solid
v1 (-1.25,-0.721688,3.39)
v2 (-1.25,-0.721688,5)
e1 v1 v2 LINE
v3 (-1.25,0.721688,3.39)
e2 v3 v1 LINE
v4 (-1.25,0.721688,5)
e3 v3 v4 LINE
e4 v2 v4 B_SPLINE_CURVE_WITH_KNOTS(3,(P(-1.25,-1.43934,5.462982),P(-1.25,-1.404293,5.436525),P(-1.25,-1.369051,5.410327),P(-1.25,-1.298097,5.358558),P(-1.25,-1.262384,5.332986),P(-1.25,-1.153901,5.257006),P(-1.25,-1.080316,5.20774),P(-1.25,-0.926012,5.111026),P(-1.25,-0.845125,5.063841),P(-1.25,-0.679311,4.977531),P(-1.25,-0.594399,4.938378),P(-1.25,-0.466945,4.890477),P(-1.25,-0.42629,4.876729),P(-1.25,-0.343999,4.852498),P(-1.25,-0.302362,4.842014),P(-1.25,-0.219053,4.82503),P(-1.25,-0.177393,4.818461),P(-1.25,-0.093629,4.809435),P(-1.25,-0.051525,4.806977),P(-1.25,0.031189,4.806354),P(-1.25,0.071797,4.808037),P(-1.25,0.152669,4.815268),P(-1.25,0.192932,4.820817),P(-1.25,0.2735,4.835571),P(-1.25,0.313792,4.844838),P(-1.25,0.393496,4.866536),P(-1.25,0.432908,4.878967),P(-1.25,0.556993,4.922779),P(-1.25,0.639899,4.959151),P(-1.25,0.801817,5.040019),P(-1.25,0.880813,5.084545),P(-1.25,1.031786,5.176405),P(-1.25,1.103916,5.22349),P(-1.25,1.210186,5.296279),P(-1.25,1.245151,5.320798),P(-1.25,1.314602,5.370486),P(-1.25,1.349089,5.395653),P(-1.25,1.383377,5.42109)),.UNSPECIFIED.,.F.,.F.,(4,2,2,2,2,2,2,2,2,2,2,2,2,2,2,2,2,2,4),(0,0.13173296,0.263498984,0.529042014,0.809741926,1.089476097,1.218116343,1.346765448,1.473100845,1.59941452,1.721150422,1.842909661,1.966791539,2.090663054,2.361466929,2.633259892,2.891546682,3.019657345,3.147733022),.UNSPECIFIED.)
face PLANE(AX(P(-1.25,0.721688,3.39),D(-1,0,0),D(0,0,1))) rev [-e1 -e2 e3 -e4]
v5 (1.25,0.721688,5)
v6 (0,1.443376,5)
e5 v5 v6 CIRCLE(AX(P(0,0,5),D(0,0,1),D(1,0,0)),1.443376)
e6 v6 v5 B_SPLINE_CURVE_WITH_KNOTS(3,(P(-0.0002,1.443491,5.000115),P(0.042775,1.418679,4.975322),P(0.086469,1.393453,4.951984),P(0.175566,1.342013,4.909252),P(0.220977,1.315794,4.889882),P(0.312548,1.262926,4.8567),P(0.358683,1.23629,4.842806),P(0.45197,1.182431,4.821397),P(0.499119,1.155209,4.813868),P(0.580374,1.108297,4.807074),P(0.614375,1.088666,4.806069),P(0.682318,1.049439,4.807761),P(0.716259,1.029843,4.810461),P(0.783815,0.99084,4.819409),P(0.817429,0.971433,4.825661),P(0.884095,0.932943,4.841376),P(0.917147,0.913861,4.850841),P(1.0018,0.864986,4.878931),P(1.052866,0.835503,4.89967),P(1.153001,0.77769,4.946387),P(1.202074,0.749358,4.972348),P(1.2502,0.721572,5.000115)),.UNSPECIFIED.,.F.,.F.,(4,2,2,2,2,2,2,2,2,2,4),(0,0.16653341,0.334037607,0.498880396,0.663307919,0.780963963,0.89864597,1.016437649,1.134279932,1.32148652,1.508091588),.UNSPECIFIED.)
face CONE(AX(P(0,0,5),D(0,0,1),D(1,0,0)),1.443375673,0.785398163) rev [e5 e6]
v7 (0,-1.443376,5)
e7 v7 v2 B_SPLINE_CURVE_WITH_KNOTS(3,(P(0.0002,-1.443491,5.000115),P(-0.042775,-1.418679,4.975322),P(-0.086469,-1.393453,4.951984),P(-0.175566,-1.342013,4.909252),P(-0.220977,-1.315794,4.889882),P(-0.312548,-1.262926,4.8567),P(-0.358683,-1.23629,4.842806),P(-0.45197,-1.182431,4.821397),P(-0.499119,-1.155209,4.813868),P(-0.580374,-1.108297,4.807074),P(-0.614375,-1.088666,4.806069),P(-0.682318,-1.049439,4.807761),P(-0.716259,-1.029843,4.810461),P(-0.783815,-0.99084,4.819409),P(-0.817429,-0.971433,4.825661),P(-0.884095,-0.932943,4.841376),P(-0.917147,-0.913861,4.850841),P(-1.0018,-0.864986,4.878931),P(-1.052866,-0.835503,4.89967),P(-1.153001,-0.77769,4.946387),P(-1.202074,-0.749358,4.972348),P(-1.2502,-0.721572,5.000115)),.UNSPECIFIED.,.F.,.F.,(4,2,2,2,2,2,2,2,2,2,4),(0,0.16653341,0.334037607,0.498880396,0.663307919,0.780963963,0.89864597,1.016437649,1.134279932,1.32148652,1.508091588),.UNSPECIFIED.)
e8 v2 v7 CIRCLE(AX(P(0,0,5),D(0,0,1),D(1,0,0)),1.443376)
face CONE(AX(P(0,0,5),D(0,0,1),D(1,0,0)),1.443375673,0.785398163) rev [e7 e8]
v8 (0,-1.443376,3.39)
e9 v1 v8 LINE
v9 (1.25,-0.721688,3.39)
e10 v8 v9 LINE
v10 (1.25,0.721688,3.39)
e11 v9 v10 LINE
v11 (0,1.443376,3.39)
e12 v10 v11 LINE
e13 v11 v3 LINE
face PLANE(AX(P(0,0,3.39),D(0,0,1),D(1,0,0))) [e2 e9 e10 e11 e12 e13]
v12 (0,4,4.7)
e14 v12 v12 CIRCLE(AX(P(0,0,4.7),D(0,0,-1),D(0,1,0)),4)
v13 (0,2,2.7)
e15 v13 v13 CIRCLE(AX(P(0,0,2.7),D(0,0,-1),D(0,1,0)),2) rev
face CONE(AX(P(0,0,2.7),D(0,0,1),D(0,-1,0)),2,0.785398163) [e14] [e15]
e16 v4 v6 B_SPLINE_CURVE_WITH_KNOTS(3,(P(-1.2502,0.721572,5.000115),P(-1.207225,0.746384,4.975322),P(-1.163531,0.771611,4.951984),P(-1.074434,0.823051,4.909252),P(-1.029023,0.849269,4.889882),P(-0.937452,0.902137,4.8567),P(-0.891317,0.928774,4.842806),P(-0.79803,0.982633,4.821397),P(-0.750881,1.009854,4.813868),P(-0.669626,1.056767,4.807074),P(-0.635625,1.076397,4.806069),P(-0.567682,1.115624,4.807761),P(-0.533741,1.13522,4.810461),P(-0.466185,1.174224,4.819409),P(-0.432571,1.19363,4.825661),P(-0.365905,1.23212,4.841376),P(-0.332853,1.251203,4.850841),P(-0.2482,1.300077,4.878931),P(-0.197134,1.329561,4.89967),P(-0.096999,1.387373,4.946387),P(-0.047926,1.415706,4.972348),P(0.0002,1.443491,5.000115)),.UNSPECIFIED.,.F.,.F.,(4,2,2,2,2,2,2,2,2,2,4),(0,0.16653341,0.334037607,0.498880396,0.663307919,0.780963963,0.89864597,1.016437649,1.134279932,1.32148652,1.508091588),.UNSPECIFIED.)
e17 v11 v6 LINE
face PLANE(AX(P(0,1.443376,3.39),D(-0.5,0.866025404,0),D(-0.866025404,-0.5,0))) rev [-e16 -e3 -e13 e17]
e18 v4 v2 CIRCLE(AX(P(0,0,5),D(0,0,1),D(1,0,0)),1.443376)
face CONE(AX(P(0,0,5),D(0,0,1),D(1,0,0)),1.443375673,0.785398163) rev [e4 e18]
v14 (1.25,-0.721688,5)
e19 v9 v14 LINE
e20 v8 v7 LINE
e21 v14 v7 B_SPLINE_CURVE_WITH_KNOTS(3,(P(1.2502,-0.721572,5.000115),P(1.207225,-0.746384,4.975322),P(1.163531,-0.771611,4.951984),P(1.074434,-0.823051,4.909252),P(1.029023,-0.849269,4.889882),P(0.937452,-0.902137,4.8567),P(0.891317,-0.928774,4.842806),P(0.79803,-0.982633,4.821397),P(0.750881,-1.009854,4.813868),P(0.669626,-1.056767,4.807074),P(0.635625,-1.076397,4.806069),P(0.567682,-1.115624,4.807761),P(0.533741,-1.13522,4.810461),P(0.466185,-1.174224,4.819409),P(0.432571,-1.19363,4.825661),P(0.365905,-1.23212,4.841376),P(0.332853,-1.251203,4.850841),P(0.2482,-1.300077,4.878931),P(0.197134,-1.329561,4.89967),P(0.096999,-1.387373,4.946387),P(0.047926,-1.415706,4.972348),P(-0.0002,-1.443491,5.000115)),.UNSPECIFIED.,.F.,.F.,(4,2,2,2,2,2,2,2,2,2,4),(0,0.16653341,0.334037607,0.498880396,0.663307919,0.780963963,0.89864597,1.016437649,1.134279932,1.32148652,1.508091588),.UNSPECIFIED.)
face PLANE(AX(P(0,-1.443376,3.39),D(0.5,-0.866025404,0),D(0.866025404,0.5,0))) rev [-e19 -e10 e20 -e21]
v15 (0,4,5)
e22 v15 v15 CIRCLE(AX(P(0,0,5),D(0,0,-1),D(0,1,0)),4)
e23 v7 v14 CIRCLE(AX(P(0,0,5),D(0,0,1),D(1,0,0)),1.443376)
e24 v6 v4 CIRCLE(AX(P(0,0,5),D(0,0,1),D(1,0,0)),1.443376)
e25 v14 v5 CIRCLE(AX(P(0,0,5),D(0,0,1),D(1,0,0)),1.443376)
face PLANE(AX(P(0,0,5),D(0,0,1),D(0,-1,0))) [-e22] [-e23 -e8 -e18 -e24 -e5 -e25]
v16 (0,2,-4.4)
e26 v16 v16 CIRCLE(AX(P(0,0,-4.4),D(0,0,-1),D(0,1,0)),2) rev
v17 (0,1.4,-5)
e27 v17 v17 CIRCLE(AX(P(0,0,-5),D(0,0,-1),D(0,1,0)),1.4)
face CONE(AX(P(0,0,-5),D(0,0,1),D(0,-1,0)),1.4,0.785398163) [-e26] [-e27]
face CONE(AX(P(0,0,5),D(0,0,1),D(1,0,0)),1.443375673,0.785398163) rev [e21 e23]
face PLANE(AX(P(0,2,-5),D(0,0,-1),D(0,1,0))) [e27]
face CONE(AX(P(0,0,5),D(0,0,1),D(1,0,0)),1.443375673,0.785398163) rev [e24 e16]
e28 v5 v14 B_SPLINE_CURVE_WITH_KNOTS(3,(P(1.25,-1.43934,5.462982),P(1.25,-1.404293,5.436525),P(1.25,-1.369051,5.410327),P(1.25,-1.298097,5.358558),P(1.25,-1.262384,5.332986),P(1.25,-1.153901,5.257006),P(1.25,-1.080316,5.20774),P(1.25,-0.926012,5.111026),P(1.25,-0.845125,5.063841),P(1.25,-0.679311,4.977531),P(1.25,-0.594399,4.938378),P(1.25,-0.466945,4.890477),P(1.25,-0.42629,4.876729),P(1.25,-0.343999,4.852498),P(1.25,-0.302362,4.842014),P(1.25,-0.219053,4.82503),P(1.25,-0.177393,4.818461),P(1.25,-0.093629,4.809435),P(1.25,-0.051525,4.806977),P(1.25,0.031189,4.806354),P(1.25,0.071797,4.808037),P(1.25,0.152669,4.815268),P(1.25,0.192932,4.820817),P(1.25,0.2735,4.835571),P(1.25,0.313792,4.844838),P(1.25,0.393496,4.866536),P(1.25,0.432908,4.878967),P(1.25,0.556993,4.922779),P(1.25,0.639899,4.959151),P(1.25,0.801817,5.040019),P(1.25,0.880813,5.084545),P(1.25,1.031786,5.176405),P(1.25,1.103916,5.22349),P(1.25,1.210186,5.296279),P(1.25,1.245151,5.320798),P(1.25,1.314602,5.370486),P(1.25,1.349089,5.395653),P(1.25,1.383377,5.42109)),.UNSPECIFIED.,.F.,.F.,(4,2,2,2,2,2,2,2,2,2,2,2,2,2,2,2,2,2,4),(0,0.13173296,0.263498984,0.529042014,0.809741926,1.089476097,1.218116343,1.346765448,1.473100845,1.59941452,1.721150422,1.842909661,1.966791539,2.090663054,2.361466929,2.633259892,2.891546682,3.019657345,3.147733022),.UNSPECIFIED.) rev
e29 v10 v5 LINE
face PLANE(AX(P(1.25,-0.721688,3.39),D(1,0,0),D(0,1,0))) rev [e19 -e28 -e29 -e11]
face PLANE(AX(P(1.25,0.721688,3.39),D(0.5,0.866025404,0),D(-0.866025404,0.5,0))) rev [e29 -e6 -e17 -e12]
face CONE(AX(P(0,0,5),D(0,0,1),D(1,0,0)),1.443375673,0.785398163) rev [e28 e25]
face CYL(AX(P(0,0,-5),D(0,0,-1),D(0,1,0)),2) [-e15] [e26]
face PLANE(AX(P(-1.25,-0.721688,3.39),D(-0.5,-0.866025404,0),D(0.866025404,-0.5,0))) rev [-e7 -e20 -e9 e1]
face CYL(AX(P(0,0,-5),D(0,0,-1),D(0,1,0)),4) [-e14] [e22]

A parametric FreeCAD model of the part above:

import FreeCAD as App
import Part
import Sketcher
Q = App.Units.Quantity


def edges_at(feature, points):
    """Names of the edges that pass closest to the given points."""
    edges = feature.Shape.Edges
    near = lambda p: min(range(len(edges)), key=lambda i: edges[i].distToShape(Part.Vertex(*p))[0])
    return sorted({f"Edge{near(p) + 1}" for p in points})


def faces_at(feature, points):
    """Names of the faces that lie closest to the given points."""
    faces = feature.Shape.Faces
    near = lambda p: min(range(len(faces)), key=lambda i: faces[i].distToShape(Part.Vertex(*p))[0])
    return sorted({f"Face{near(p) + 1}" for p in points})

doc = App.newDocument("Part")
body = doc.addObject("PartDesign::Body", "Body")

# Sketch on YZ plane
sketch1 = body.newObject("Sketcher::SketchObject", "Sketch")
sketch1.AttachmentSupport = (doc.getObject("YZ_Plane"), [""])
sketch1.MapMode = "FlatFace"
sketch1.addGeometry([
    Part.LineSegment(App.Vector(2, 5, 0), App.Vector(0, 5, 0)),
    Part.LineSegment(App.Vector(0, 5, 0), App.Vector(0, -5, 0)),
    Part.LineSegment(App.Vector(0, -5, 0), App.Vector(2, -5, 0)),
    Part.LineSegment(App.Vector(2, -5, 0), App.Vector(2, 5, 0)),
], False)
sketch1.addConstraint([
    Sketcher.Constraint("Coincident", 0, 2, 1, 1),
    Sketcher.Constraint("Coincident", 1, 2, 2, 1),
    Sketcher.Constraint("Coincident", 2, 2, 3, 1),
    Sketcher.Constraint("Coincident", 3, 2, 0, 1),
    Sketcher.Constraint("Horizontal", 0),
    Sketcher.Constraint("Vertical", 1),
    Sketcher.Constraint("Horizontal", 2),
    Sketcher.Constraint("Vertical", 3),
    Sketcher.Constraint("Symmetric", 0, 2, 1, 2, -1, 1),
    Sketcher.Constraint("DistanceX", 0, 2, 0, 1, Q("2 mm")),
    Sketcher.Constraint("DistanceY", 1, 2, 1, 1, Q("10 mm")),
])
revolution = body.newObject("PartDesign::Revolution", "Revolution")
revolution.Profile = sketch1
revolution.ReferenceAxis = (sketch1, ["V_Axis"])
revolution.Angle = 360
doc.recompute()

chamfer = body.newObject("PartDesign::Chamfer", "Chamfer")
chamfer.Base = (revolution, edges_at(revolution, [(0, -2, -5)]))
chamfer.Size = 0.6

# Sketch on YZ plane
sketch2 = body.newObject("Sketcher::SketchObject", "Sketch001")
sketch2.AttachmentSupport = (doc.getObject("YZ_Plane"), [""])
sketch2.MapMode = "FlatFace"
sketch2.addGeometry([
    Part.LineSegment(App.Vector(4, 4.7, 0), App.Vector(4, 5, 0)),  # 0
    Part.LineSegment(App.Vector(4, 5, 0), App.Vector(0, 5, 0)),  # 1
    Part.LineSegment(App.Vector(0, 5, 0), App.Vector(0, 2.7, 0)),  # 2
    Part.LineSegment(App.Vector(0, 2.7, 0), App.Vector(2, 2.7, 0)),  # 3
    Part.LineSegment(App.Vector(2, 2.7, 0), App.Vector(4, 4.7, 0)),  # 4
], False)
sketch2.addConstraint([
    Sketcher.Constraint("Coincident", 0, 2, 1, 1),
    Sketcher.Constraint("Coincident", 1, 2, 2, 1),
    Sketcher.Constraint("Coincident", 2, 2, 3, 1),
    Sketcher.Constraint("Coincident", 3, 2, 4, 1),
    Sketcher.Constraint("Coincident", 4, 2, 0, 1),
    Sketcher.Constraint("Vertical", 0),
    Sketcher.Constraint("Horizontal", 1),
    Sketcher.Constraint("Vertical", 2),
    Sketcher.Constraint("Horizontal", 3),
    Sketcher.Constraint("PointOnObject", 1, 2, -2),
    Sketcher.Constraint("DistanceX", 1, 2, 1, 1, Q("4 mm")),
    Sketcher.Constraint("DistanceX", 3, 1, 3, 2, Q("2 mm")),
    Sketcher.Constraint("Angle", 4, Q("45 deg")),
    Sketcher.Constraint("DistanceY", 0, 1, 0, 2, Q("0.3 mm")),
    Sketcher.Constraint("DistanceY", -1, 1, 0, 2, Q("5 mm")),
])
revolution2 = body.newObject("PartDesign::Revolution", "Revolution001")
revolution2.Profile = sketch2
revolution2.ReferenceAxis = (sketch2, ["V_Axis"])
revolution2.Angle = 360

# Sketch on XY plane
sketch3 = body.newObject("Sketcher::SketchObject", "Sketch002")
sketch3.AttachmentSupport = (doc.getObject("XY_Plane"), [""])
sketch3.MapMode = "FlatFace"
sketch3.AttachmentOffset = App.Placement(App.Vector(0, 0, 5), App.Rotation())
sketch3.addGeometry([
    Part.LineSegment(App.Vector(0, 1.4, 0), App.Vector(-1.2, 0.7, 0)),  # 0
    Part.LineSegment(App.Vector(-1.2, 0.7, 0), App.Vector(-1.2, -0.7, 0)),  # 1
    Part.LineSegment(App.Vector(-1.2, -0.7, 0), App.Vector(0, -1.4, 0)),  # 2
    Part.LineSegment(App.Vector(0, -1.4, 0), App.Vector(1.2, -0.7, 0)),  # 3
    Part.LineSegment(App.Vector(1.2, -0.7, 0), App.Vector(1.2, 0.7, 0)),  # 4
    Part.LineSegment(App.Vector(1.2, 0.7, 0), App.Vector(0, 1.4, 0)),  # 5
], False)
sketch3.addConstraint([
    Sketcher.Constraint("Coincident", 0, 2, 1, 1),
    Sketcher.Constraint("Coincident", 1, 2, 2, 1),
    Sketcher.Constraint("Coincident", 2, 2, 3, 1),
    Sketcher.Constraint("Coincident", 3, 2, 4, 1),
    Sketcher.Constraint("Coincident", 4, 2, 5, 1),
    Sketcher.Constraint("Coincident", 5, 2, 0, 1),
    Sketcher.Constraint("Vertical", 1),
    Sketcher.Constraint("Vertical", 4),
    Sketcher.Constraint("Symmetric", 0, 2, 3, 2, -1, 1),
    Sketcher.Constraint("Symmetric", 2, 2, 5, 2, -1, 1),
    Sketcher.Constraint("PointOnObject", 2, 2, -2),
    Sketcher.Constraint("Parallel", 2, 5),
    Sketcher.Constraint("Horizontal", 1, 2, 3, 2),
    Sketcher.Constraint("Angle", 0, Q("-150 deg")),
    Sketcher.Constraint("DistanceX", 1, 2, 3, 2, Q("2.5 mm")),
    Sketcher.Constraint("DistanceY", 1, 2, 1, 1, Q("1.443376 mm")),
])
pocket1 = body.newObject("PartDesign::Pocket", "Pocket")
pocket1.Profile = sketch3
pocket1.Length = 1.61
body2 = doc.addObject("PartDesign::Body", "Body001")

# Sketch on XY plane
sketch4 = body2.newObject("Sketcher::SketchObject", "Sketch003")
sketch4.AttachmentSupport = (doc.getObject("XY_Plane001"), [""])
sketch4.MapMode = "FlatFace"
sketch4.AttachmentOffset = App.Placement(App.Vector(0, 0, 5), App.Rotation())
sketch4.addGeometry(Part.Circle(App.Vector(0, 0, 0), App.Vector(0, 0, 1), 1.4), False)
sketch4.addConstraint([
    Sketcher.Constraint("Coincident", 0, 3, -1, 1),
    Sketcher.Constraint("Diameter", 0, Q("2.886751 mm")),
])
pad1 = body2.newObject("PartDesign::Pad", "Pad")
pad1.Profile = sketch4
pad1.Length = 1.61
pad1.Reversed = True
doc.recompute()

datumplane = body2.newObject("PartDesign::Plane", "DatumPlane")
datumplane.AttachmentSupport = (doc.getObject("XY_Plane001"), [""])
datumplane.MapMode = "FlatFace"
datumplane.AttachmentOffset = App.Placement(App.Vector(0, 0, 5), App.Rotation())
draft = body2.newObject("PartDesign::Draft", "Draft")
draft.Base = (pad1, faces_at(pad1, [(-1.443, 0, 4.195)]))
draft.NeutralPlane = (datumplane, [""])
draft.Angle = 45
draft.Reversed = True
doc.recompute()

boolean = body.newObject("PartDesign::Boolean", "Boolean")
boolean.Type = "Cut"
boolean.addObjects([body2])

doc.recompute()
